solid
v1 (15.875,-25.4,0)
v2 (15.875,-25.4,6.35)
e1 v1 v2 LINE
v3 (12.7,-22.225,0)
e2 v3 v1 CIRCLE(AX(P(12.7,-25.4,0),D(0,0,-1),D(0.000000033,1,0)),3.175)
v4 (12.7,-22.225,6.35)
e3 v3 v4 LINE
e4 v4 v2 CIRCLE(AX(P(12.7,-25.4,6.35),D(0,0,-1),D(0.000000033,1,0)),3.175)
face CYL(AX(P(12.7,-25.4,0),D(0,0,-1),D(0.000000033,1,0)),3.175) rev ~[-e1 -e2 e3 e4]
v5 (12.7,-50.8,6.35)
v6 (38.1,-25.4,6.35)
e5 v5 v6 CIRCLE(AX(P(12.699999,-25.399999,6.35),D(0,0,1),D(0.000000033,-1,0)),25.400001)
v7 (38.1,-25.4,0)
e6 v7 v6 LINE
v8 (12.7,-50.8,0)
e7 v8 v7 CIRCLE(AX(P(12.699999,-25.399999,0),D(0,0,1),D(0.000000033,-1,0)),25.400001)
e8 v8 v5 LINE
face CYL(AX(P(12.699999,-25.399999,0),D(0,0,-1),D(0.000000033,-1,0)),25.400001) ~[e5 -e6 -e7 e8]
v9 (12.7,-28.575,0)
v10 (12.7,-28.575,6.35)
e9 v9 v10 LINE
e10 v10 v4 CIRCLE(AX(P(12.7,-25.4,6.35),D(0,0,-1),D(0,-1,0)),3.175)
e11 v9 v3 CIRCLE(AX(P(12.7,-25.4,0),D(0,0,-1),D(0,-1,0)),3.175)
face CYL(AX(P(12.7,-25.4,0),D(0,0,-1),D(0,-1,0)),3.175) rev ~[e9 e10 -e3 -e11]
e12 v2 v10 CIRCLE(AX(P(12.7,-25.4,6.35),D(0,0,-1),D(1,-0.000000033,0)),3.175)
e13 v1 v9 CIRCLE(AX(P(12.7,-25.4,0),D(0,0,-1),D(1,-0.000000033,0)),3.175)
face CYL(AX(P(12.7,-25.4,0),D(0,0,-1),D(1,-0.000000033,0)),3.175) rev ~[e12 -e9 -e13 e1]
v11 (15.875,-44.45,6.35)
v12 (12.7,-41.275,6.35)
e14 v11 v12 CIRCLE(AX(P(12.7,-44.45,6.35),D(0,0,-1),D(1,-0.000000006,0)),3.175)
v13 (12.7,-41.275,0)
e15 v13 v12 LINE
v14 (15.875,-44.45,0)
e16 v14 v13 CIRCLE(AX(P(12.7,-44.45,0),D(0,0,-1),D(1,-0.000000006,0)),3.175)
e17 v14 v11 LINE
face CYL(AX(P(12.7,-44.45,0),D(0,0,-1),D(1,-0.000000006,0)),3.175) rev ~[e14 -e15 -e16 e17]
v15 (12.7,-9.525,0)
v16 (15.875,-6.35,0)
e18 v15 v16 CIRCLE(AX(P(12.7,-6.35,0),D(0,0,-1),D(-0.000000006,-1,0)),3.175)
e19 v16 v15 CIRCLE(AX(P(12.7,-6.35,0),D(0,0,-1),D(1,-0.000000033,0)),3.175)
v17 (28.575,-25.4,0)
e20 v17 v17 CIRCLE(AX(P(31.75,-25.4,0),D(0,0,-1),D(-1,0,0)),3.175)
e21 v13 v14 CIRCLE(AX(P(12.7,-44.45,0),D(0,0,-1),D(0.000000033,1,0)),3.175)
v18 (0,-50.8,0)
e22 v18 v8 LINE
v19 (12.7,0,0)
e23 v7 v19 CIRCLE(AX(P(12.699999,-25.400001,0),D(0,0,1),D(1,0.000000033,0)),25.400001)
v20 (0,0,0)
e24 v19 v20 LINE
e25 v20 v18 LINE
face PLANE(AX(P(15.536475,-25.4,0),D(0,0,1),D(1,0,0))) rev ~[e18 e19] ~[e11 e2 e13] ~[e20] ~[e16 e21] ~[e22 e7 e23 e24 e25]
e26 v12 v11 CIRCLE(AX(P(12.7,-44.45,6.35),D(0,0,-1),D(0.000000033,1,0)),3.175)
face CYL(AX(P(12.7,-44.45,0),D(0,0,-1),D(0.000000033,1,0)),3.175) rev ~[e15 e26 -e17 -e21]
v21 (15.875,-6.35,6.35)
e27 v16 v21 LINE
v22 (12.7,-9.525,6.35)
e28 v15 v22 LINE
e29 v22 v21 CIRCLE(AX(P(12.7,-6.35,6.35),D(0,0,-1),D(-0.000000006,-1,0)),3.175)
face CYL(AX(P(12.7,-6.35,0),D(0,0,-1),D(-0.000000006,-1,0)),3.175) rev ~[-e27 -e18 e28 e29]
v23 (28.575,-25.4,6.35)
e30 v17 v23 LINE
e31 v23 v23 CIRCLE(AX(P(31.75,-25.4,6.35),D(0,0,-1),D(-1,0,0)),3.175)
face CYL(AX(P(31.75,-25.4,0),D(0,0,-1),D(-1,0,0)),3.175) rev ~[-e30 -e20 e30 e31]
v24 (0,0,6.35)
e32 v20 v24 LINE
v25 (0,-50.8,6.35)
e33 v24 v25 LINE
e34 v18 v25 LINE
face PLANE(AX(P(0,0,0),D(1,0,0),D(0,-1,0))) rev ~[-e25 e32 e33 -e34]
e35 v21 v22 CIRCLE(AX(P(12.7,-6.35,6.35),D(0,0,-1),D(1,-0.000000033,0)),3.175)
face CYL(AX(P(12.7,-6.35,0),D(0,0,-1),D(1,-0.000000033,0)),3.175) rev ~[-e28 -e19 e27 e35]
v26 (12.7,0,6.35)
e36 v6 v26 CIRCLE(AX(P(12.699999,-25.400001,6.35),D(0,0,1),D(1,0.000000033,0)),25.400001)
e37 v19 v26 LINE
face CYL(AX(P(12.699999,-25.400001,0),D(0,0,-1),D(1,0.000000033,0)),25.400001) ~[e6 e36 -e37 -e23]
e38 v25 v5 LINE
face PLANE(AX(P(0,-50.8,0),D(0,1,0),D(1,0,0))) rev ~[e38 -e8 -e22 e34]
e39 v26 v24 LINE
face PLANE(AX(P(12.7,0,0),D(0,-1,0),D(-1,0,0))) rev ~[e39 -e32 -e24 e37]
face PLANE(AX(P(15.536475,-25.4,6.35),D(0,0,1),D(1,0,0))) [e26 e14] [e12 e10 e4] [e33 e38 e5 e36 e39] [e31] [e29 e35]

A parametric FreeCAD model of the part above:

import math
import FreeCAD as App
import Part
import Sketcher
Q = App.Units.Quantity

doc = App.newDocument("Part")
body = doc.addObject("PartDesign::Body", "Body")

# Sketch on XY plane
sketch1 = doc.addObject("Sketcher::SketchObject", "Sketch")
body.addObject(sketch1)
sketch1.AttachmentSupport = (doc.XY_Plane, [""])
sketch1.MapMode = "FlatFace"
sketch1.addGeometry(Part.LineSegment(App.Vector(12.7, 0, 0), App.Vector(0, 0, 0)), False)
sketch1.addGeometry(Part.LineSegment(App.Vector(0, 0, 0), App.Vector(0, -50.8, 0)), False)
sketch1.addGeometry(Part.LineSegment(App.Vector(0, -50.8, 0), App.Vector(12.7, -50.8, 0)), False)
sketch1.addGeometry(Part.ArcOfCircle(Part.Circle(App.Vector(12.699999, -25.399999, 0), App.Vector(0, 0, 1), 25.400001), math.radians(-89.999998), math.radians(-0.000002)), False)
sketch1.addGeometry(Part.ArcOfCircle(Part.Circle(App.Vector(12.699999, -25.400001, 0), App.Vector(0, 0, 1), 25.400001), math.radians(0.000002), math.radians(89.999998)), False)
sketch1.addGeometry(Part.ArcOfCircle(Part.Circle(App.Vector(12.7, -44.45, 0), App.Vector(0, 0, 1), 3.175), math.radians(0.000002), math.radians(89.999998)), False)
sketch1.addGeometry(Part.ArcOfCircle(Part.Circle(App.Vector(12.7, -44.45, 0), App.Vector(0, 0, 1), 3.175), math.radians(90), math.radians(360)), False)
sketch1.addGeometry(Part.ArcOfCircle(Part.Circle(App.Vector(12.7, -25.4, 0), App.Vector(0, 0, 1), 3.175), math.radians(90), math.radians(270)), False)
sketch1.addGeometry(Part.ArcOfCircle(Part.Circle(App.Vector(12.7, -25.4, 0), App.Vector(0, 0, 1), 3.175), math.radians(0.000002), math.radians(89.999998)), False)
sketch1.addGeometry(Part.ArcOfCircle(Part.Circle(App.Vector(12.7, -25.4, 0), App.Vector(0, 0, 1), 3.175), math.radians(-89.999998), math.radians(-0.000002)), False)
sketch1.addGeometry(Part.ArcOfCircle(Part.Circle(App.Vector(12.7, -6.35, 0), App.Vector(0, 0, 1), 3.175), math.radians(0), math.radians(270)), False)
sketch1.addGeometry(Part.ArcOfCircle(Part.Circle(App.Vector(12.7, -6.35, 0), App.Vector(0, 0, 1), 3.175), math.radians(-89.999998), math.radians(-0.000002)), False)
sketch1.addGeometry(Part.Circle(App.Vector(31.75, -25.4, 0), App.Vector(0, 0, 1), 3.175), False)
sketch1.addConstraint(Sketcher.Constraint("Coincident", 0, 2, 1, 1))
sketch1.addConstraint(Sketcher.Constraint("Coincident", 1, 2, 2, 1))
sketch1.addConstraint(Sketcher.Constraint("Tangent", 2, 2, 3, 1))
sketch1.addConstraint(Sketcher.Constraint("Tangent", 3, 2, 4, 1))
sketch1.addConstraint(Sketcher.Constraint("Tangent", 4, 2, 0, 1))
sketch1.addConstraint(Sketcher.Constraint("Tangent", 5, 1, 6, 2))
sketch1.addConstraint(Sketcher.Constraint("Coincident", 6, 1, 5, 2))
sketch1.addConstraint(Sketcher.Constraint("Tangent", 7, 1, 8, 2))
sketch1.addConstraint(Sketcher.Constraint("Tangent", 8, 1, 9, 2))
sketch1.addConstraint(Sketcher.Constraint("Tangent", 9, 1, 7, 2))
sketch1.addConstraint(Sketcher.Constraint("Tangent", 10, 1, 11, 2))
sketch1.addConstraint(Sketcher.Constraint("Coincident", 11, 1, 10, 2))
sketch1.addConstraint(Sketcher.Constraint("Horizontal", 0))
sketch1.addConstraint(Sketcher.Constraint("Vertical", 1))
sketch1.addConstraint(Sketcher.Constraint("Horizontal", 2))
sketch1.addConstraint(Sketcher.Constraint("Coincident", 0, 2, -1, 1))
sketch1.addConstraint(Sketcher.Constraint("Coincident", 7, 3, 3, 3))
sketch1.addConstraint(Sketcher.Constraint("Equal", 3, 4))
sketch1.addConstraint(Sketcher.Constraint("Equal", 6, 7))
sketch1.addConstraint(Sketcher.Constraint("Equal", 9, 10))
sketch1.addConstraint(Sketcher.Constraint("Equal", 11, 12))
sketch1.addConstraint(Sketcher.Constraint("Horizontal", 9, 3, 12, 3))
sketch1.addConstraint(Sketcher.Constraint("Horizontal", 12, 3, 3, 2))
sketch1.addConstraint(Sketcher.Constraint("Horizontal", 6, 3, 5, 1))
sketch1.addConstraint(Sketcher.Constraint("Horizontal", 3, 2, 8, 1))
sketch1.addConstraint(Sketcher.Constraint("Horizontal", 11, 3, 10, 1))
sketch1.addConstraint(Sketcher.Constraint("Vertical", 4, 3, 5, 3))
sketch1.addConstraint(Sketcher.Constraint("Vertical", 9, 3, 10, 3))
sketch1.addConstraint(Sketcher.Constraint("Vertical", 4, 2, 6, 1))
sketch1.addConstraint(Sketcher.Constraint("Vertical", 6, 1, 7, 1))
sketch1.addConstraint(Sketcher.Constraint("Vertical", 7, 1, 9, 1))
sketch1.addConstraint(Sketcher.Constraint("Vertical", 9, 1, 11, 1))
sketch1.addConstraint(Sketcher.Constraint("Radius", 3, Q("1 in")))
sketch1.addConstraint(Sketcher.Constraint("Diameter", 12, Q("0.25 in")))
sketch1.addConstraint(Sketcher.Constraint("DistanceX", 0, 2, 0, 1, Q("0.5 in")))
sketch1.addConstraint(Sketcher.Constraint("DistanceY", 7, 1, 11, 1, Q("0.5 in")))
sketch1.addConstraint(Sketcher.Constraint("DistanceY", 5, 3, -1, 1, Q("1.75 in")))
sketch1.addConstraint(Sketcher.Constraint("DistanceX", -1, 1, 12, 3, Q("1.25 in")))
pad1 = doc.addObject("PartDesign::Pad", "Pad")
body.addObject(pad1)
pad1.Profile = sketch1
pad1.Length = Q("0.25 in")

doc.recompute()
